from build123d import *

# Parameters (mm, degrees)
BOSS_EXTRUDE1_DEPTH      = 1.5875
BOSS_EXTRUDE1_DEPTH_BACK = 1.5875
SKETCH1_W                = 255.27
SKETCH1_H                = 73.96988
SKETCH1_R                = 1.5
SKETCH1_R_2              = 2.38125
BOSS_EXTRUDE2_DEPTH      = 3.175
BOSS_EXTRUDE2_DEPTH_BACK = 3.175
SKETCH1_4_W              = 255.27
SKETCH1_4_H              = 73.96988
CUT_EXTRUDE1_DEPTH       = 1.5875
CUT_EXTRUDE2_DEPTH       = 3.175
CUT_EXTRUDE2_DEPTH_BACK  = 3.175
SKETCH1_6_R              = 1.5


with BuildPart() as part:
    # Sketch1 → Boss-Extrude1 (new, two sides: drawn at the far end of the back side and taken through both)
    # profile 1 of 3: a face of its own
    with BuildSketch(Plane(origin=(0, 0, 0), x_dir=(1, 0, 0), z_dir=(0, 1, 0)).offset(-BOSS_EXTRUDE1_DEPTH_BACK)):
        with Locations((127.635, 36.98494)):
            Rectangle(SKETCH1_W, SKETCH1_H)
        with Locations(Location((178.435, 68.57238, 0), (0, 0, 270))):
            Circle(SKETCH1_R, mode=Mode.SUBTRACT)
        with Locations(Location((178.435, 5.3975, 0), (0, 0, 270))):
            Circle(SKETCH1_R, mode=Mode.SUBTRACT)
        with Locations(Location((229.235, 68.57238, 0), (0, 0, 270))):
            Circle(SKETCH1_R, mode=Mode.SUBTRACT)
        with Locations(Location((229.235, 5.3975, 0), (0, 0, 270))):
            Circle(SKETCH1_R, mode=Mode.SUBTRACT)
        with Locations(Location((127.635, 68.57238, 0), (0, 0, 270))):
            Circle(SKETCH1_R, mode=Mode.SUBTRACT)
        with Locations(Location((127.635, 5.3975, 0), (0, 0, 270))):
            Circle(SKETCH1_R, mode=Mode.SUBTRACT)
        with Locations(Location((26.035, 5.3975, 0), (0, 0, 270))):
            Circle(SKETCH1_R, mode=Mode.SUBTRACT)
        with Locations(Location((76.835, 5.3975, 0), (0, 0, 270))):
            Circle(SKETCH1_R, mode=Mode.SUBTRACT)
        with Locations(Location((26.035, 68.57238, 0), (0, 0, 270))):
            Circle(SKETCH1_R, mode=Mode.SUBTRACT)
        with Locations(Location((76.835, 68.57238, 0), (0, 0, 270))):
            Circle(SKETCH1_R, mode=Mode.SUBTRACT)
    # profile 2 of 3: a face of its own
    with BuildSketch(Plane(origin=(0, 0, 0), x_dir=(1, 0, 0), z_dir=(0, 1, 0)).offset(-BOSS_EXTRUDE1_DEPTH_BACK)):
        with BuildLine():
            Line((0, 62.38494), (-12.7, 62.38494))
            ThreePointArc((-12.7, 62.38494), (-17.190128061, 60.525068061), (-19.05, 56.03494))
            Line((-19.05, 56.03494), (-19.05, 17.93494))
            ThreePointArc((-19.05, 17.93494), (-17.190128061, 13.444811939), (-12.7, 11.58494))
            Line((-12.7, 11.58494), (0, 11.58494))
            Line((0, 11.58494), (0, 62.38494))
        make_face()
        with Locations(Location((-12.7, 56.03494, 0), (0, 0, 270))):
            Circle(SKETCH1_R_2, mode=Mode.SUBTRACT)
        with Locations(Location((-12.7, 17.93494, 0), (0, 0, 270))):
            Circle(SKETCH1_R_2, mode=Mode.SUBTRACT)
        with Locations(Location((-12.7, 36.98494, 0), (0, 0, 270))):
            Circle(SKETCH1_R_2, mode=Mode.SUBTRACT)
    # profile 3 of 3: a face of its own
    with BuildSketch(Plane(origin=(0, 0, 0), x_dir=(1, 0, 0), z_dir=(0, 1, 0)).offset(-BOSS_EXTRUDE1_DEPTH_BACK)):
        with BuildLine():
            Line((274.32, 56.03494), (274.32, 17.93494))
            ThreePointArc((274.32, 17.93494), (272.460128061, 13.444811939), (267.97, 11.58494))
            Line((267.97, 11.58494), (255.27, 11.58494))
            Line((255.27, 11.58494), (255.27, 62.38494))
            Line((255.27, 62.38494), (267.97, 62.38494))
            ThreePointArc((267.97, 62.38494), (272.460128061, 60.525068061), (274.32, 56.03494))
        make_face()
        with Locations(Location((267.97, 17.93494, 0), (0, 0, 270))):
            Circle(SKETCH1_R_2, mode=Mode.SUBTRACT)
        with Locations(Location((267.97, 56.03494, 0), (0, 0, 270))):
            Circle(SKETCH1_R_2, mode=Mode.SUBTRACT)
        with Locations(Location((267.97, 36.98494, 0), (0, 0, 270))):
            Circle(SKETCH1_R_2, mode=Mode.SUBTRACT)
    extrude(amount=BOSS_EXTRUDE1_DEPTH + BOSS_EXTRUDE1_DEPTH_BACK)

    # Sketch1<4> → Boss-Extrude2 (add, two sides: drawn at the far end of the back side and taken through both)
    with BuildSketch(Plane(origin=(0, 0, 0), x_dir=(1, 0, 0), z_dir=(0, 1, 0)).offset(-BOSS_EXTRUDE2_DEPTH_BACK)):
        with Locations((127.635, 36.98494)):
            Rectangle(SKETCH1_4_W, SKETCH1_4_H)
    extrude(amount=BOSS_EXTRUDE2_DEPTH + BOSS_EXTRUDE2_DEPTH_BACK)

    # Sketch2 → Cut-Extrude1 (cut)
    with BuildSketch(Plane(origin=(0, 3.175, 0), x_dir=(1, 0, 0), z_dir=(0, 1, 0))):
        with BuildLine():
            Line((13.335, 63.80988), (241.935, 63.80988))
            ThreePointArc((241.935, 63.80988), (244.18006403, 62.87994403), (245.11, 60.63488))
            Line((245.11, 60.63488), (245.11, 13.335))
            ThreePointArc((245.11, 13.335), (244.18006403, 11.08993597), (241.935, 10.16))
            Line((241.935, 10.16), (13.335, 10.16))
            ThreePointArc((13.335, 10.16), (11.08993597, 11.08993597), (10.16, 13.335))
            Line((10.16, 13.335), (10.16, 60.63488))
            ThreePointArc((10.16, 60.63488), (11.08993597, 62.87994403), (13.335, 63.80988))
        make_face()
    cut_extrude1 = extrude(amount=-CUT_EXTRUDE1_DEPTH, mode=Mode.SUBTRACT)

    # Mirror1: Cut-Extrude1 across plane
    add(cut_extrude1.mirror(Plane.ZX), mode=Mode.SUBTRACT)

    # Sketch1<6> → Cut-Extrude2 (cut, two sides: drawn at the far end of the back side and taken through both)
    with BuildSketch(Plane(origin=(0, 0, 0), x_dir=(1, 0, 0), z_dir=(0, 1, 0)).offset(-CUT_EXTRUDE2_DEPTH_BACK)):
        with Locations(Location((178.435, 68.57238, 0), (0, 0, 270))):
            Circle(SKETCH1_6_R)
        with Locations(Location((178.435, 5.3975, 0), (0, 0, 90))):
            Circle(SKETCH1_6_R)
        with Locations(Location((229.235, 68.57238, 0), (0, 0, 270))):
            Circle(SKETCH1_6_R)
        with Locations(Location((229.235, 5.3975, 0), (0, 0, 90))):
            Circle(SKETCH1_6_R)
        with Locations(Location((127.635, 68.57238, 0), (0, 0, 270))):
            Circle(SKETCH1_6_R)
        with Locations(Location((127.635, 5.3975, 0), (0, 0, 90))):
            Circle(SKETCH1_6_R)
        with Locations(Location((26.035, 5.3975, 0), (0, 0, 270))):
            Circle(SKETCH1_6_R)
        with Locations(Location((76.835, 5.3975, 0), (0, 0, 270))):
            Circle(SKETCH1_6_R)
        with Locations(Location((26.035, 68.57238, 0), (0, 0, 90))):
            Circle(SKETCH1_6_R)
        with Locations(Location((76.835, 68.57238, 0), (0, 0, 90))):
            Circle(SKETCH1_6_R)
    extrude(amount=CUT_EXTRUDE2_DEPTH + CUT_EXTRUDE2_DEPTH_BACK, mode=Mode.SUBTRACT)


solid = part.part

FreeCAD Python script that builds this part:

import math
import FreeCAD as App
import Part
import Sketcher
Q = App.Units.Quantity


def add_polygon(sketch, points):
    """Adds a closed chain of lines whose ends are joined by coincident constraints."""
    first, n = sketch.GeometryCount, len(points)
    for a, b in zip(points, points[1:] + points[:1]):
        sketch.addGeometry(Part.LineSegment(App.Vector(*a, 0), App.Vector(*b, 0)), False)
    for i in range(n):
        sketch.addConstraint(Sketcher.Constraint("Coincident", first + i, 2, first + (i + 1) % n, 1))

doc = App.newDocument("Part")
body = doc.addObject("PartDesign::Body", "Body")

# Sketch on XZ plane
sketch1 = body.newObject("Sketcher::SketchObject", "Sketch")
sketch1.AttachmentSupport = (doc.getObject("XZ_Plane"), [""])
sketch1.MapMode = "FlatFace"
sketch1.addGeometry(Part.LineSegment(App.Vector(0, -11.58494, 0), App.Vector(0, 0, 0)), False)
sketch1.addGeometry(Part.LineSegment(App.Vector(0, 0, 0), App.Vector(255.27, 0, 0)), False)
sketch1.addGeometry(Part.LineSegment(App.Vector(255.27, 0, 0), App.Vector(255.27, -11.58494, 0)), False)
sketch1.addGeometry(Part.LineSegment(App.Vector(255.27, -11.58494, 0), App.Vector(267.97, -11.58494, 0)), False)
sketch1.addGeometry(Part.ArcOfCircle(Part.Circle(App.Vector(267.97, -17.93494, 0), App.Vector(0, 0, 1), 6.35), math.radians(0), math.radians(90)), False)
sketch1.addGeometry(Part.LineSegment(App.Vector(274.32, -17.93494, 0), App.Vector(274.32, -56.03494, 0)), False)
sketch1.addGeometry(Part.ArcOfCircle(Part.Circle(App.Vector(267.97, -56.03494, 0), App.Vector(0, 0, 1), 6.35), math.radians(-90), math.radians(0)), False)
sketch1.addGeometry(Part.LineSegment(App.Vector(267.97, -62.38494, 0), App.Vector(255.27, -62.38494, 0)), False)
sketch1.addGeometry(Part.LineSegment(App.Vector(255.27, -62.38494, 0), App.Vector(255.27, -73.96988, 0)), False)
sketch1.addGeometry(Part.LineSegment(App.Vector(255.27, -73.96988, 0), App.Vector(0, -73.96988, 0)), False)
sketch1.addGeometry(Part.LineSegment(App.Vector(0, -73.96988, 0), App.Vector(0, -62.38494, 0)), False)
sketch1.addGeometry(Part.LineSegment(App.Vector(0, -62.38494, 0), App.Vector(-12.7, -62.38494, 0)), False)
sketch1.addGeometry(Part.ArcOfCircle(Part.Circle(App.Vector(-12.7, -56.03494, 0), App.Vector(0, 0, 1), 6.35), math.radians(180), math.radians(270)), False)
sketch1.addGeometry(Part.LineSegment(App.Vector(-19.05, -56.03494, 0), App.Vector(-19.05, -17.93494, 0)), False)
sketch1.addGeometry(Part.ArcOfCircle(Part.Circle(App.Vector(-12.7, -17.93494, 0), App.Vector(0, 0, 1), 6.35), math.radians(90), math.radians(180)), False)
sketch1.addGeometry(Part.LineSegment(App.Vector(-12.7, -11.58494, 0), App.Vector(0, -11.58494, 0)), False)
sketch1.addGeometry(Part.Circle(App.Vector(26.035, -5.3975, 0), App.Vector(0, 0, 1), 1.5), False)
sketch1.addGeometry(Part.Circle(App.Vector(76.835, -5.3975, 0), App.Vector(0, 0, 1), 1.5), False)
sketch1.addGeometry(Part.Circle(App.Vector(127.635, -5.3975, 0), App.Vector(0, 0, 1), 1.5), False)
sketch1.addGeometry(Part.Circle(App.Vector(178.435, -5.3975, 0), App.Vector(0, 0, 1), 1.5), False)
sketch1.addGeometry(Part.Circle(App.Vector(229.235, -5.3975, 0), App.Vector(0, 0, 1), 1.5), False)
sketch1.addGeometry(Part.Circle(App.Vector(26.035, -68.57238, 0), App.Vector(0, 0, 1), 1.5), False)
sketch1.addGeometry(Part.Circle(App.Vector(76.835, -68.57238, 0), App.Vector(0, 0, 1), 1.5), False)
sketch1.addGeometry(Part.Circle(App.Vector(127.635, -68.57238, 0), App.Vector(0, 0, 1), 1.5), False)
sketch1.addGeometry(Part.Circle(App.Vector(178.435, -68.57238, 0), App.Vector(0, 0, 1), 1.5), False)
sketch1.addGeometry(Part.Circle(App.Vector(229.235, -68.57238, 0), App.Vector(0, 0, 1), 1.5), False)
sketch1.addGeometry(Part.Circle(App.Vector(-12.7, -56.03494, 0), App.Vector(0, 0, 1), 2.38125), False)
sketch1.addGeometry(Part.Circle(App.Vector(-12.7, -17.93494, 0), App.Vector(0, 0, 1), 2.38125), False)
sketch1.addGeometry(Part.Circle(App.Vector(-12.7, -36.98494, 0), App.Vector(0, 0, 1), 2.38125), False)
sketch1.addGeometry(Part.Circle(App.Vector(267.97, -56.03494, 0), App.Vector(0, 0, 1), 2.38125), False)
sketch1.addGeometry(Part.Circle(App.Vector(267.97, -17.93494, 0), App.Vector(0, 0, 1), 2.38125), False)
sketch1.addGeometry(Part.Circle(App.Vector(267.97, -36.98494, 0), App.Vector(0, 0, 1), 2.38125), False)
sketch1.addConstraint(Sketcher.Constraint("Coincident", 0, 2, 1, 1))
sketch1.addConstraint(Sketcher.Constraint("Coincident", 1, 2, 2, 1))
sketch1.addConstraint(Sketcher.Constraint("Coincident", 2, 2, 3, 1))
sketch1.addConstraint(Sketcher.Constraint("Tangent", 3, 2, 4, 2))
sketch1.addConstraint(Sketcher.Constraint("Tangent", 4, 1, 5, 1))
sketch1.addConstraint(Sketcher.Constraint("Tangent", 5, 2, 6, 2))
sketch1.addConstraint(Sketcher.Constraint("Tangent", 6, 1, 7, 1))
sketch1.addConstraint(Sketcher.Constraint("Coincident", 7, 2, 8, 1))
sketch1.addConstraint(Sketcher.Constraint("Coincident", 8, 2, 9, 1))
sketch1.addConstraint(Sketcher.Constraint("Coincident", 9, 2, 10, 1))
sketch1.addConstraint(Sketcher.Constraint("Coincident", 10, 2, 11, 1))
sketch1.addConstraint(Sketcher.Constraint("Tangent", 11, 2, 12, 2))
sketch1.addConstraint(Sketcher.Constraint("Tangent", 12, 1, 13, 1))
sketch1.addConstraint(Sketcher.Constraint("Tangent", 13, 2, 14, 2))
sketch1.addConstraint(Sketcher.Constraint("Tangent", 14, 1, 15, 1))
sketch1.addConstraint(Sketcher.Constraint("Coincident", 15, 2, 0, 1))
sketch1.addConstraint(Sketcher.Constraint("Vertical", 0))
sketch1.addConstraint(Sketcher.Constraint("Horizontal", 1))
sketch1.addConstraint(Sketcher.Constraint("Vertical", 2))
sketch1.addConstraint(Sketcher.Constraint("Horizontal", 3))
sketch1.addConstraint(Sketcher.Constraint("Vertical", 5))
sketch1.addConstraint(Sketcher.Constraint("Horizontal", 7))
sketch1.addConstraint(Sketcher.Constraint("Vertical", 8))
sketch1.addConstraint(Sketcher.Constraint("Horizontal", 9))
sketch1.addConstraint(Sketcher.Constraint("Vertical", 10))
sketch1.addConstraint(Sketcher.Constraint("Horizontal", 11))
sketch1.addConstraint(Sketcher.Constraint("Vertical", 13))
sketch1.addConstraint(Sketcher.Constraint("Horizontal", 15))
sketch1.addConstraint(Sketcher.Constraint("Coincident", 0, 2, -1, 1))
sketch1.addConstraint(Sketcher.Constraint("Coincident", 26, 3, 12, 3))
sketch1.addConstraint(Sketcher.Constraint("Coincident", 27, 3, 14, 3))
sketch1.addConstraint(Sketcher.Constraint("Coincident", 29, 3, 6, 3))
sketch1.addConstraint(Sketcher.Constraint("Coincident", 30, 3, 4, 3))
sketch1.addConstraint(Sketcher.Constraint("Equal", 4, 6))
sketch1.addConstraint(Sketcher.Constraint("Equal", 6, 12))
sketch1.addConstraint(Sketcher.Constraint("Equal", 12, 14))
sketch1.addConstraint(Sketcher.Constraint("Equal", 16, 17))
sketch1.addConstraint(Sketcher.Constraint("Equal", 17, 18))
sketch1.addConstraint(Sketcher.Constraint("Equal", 18, 19))
sketch1.addConstraint(Sketcher.Constraint("Equal", 19, 20))
sketch1.addConstraint(Sketcher.Constraint("Equal", 20, 21))
sketch1.addConstraint(Sketcher.Constraint("Equal", 21, 22))
sketch1.addConstraint(Sketcher.Constraint("Equal", 22, 23))
sketch1.addConstraint(Sketcher.Constraint("Equal", 23, 24))
sketch1.addConstraint(Sketcher.Constraint("Equal", 24, 25))
sketch1.addConstraint(Sketcher.Constraint("Equal", 26, 27))
sketch1.addConstraint(Sketcher.Constraint("Equal", 27, 28))
sketch1.addConstraint(Sketcher.Constraint("Equal", 28, 29))
sketch1.addConstraint(Sketcher.Constraint("Equal", 29, 30))
sketch1.addConstraint(Sketcher.Constraint("Equal", 30, 31))
sketch1.addConstraint(Sketcher.Constraint("PointOnObject", 9, 2, -2))
sketch1.addConstraint(Sketcher.Constraint("Horizontal", 6, 3, 12, 3))
sketch1.addConstraint(Sketcher.Constraint("Horizontal", 4, 3, 14, 3))
sketch1.addConstraint(Sketcher.Constraint("Horizontal", 16, 3, 17, 3))
sketch1.addConstraint(Sketcher.Constraint("Horizontal", 17, 3, 18, 3))
sketch1.addConstraint(Sketcher.Constraint("Horizontal", 18, 3, 19, 3))
sketch1.addConstraint(Sketcher.Constraint("Horizontal", 19, 3, 20, 3))
sketch1.addConstraint(Sketcher.Constraint("Horizontal", 21, 3, 22, 3))
sketch1.addConstraint(Sketcher.Constraint("Horizontal", 22, 3, 23, 3))
sketch1.addConstraint(Sketcher.Constraint("Horizontal", 23, 3, 24, 3))
sketch1.addConstraint(Sketcher.Constraint("Horizontal", 24, 3, 25, 3))
sketch1.addConstraint(Sketcher.Constraint("Horizontal", 28, 3, 31, 3))
sketch1.addConstraint(Sketcher.Constraint("Vertical", 16, 3, 21, 3))
sketch1.addConstraint(Sketcher.Constraint("Vertical", 17, 3, 22, 3))
sketch1.addConstraint(Sketcher.Constraint("Vertical", 18, 3, 23, 3))
sketch1.addConstraint(Sketcher.Constraint("Vertical", 19, 3, 24, 3))
sketch1.addConstraint(Sketcher.Constraint("Vertical", 20, 3, 25, 3))
sketch1.addConstraint(Sketcher.Constraint("Vertical", 27, 3, 28, 3))
sketch1.addConstraint(Sketcher.Constraint("Vertical", 30, 3, 31, 3))
sketch1.addConstraint(Sketcher.Constraint("Vertical", 2, 2, 7, 2))
sketch1.addConstraint(Sketcher.Constraint("Equal", 7, 11))
sketch1.addConstraint(Sketcher.Constraint("Equal", 2, 8))
sketch1.addConstraint(Sketcher.Constraint("Radius", 4, Q("0.25 in")))
sketch1.addConstraint(Sketcher.Constraint("Diameter", 26, Q("0.1875 in")))
sketch1.addConstraint(Sketcher.Constraint("DistanceX", 3, 1, 3, 2, Q("0.5 in")))
sketch1.addConstraint(Sketcher.Constraint("DistanceY", 5, 2, 5, 1, Q("1.5 in")))
sketch1.addConstraint(Sketcher.Constraint("DistanceX", 16, 3, 17, 3, Q("2 in")))
sketch1.addConstraint(Sketcher.Constraint("DistanceX", 17, 3, 18, 3, Q("2 in")))
sketch1.addConstraint(Sketcher.Constraint("DistanceX", 18, 3, 19, 3, Q("2 in")))
sketch1.addConstraint(Sketcher.Constraint("DistanceX", 19, 3, 20, 3, Q("2 in")))
sketch1.addConstraint(Sketcher.Constraint("DistanceY", 31, 3, 2, 2, Q("1 in")))
sketch1.addConstraint(Sketcher.Constraint("DistanceX", 1, 1, 1, 2, Q("10.05 in")))
sketch1.addConstraint(Sketcher.Constraint("Diameter", 16, Q("3 mm")))
sketch1.addConstraint(Sketcher.Constraint("DistanceY", 0, 1, 0, 2, Q("0.4561 in")))
sketch1.addConstraint(Sketcher.Constraint("DistanceX", -1, 1, 16, 3, Q("1.025 in")))
sketch1.addConstraint(Sketcher.Constraint("DistanceY", 16, 3, -1, 1, Q("0.2125 in")))
sketch1.addConstraint(Sketcher.Constraint("DistanceY", 21, 3, -1, 1, Q("2.6997 in")))
pad1 = body.newObject("PartDesign::Pad", "Pad")
pad1.Profile = sketch1
pad1.Type = "TwoLengths"
pad1.Length = Q("0.0625 in")
pad1.Length2 = Q("0.0625 in")
pad1.Reversed = True

# Sketch on XZ plane
sketch2 = body.newObject("Sketcher::SketchObject", "Sketch001")
sketch2.AttachmentSupport = (doc.getObject("XZ_Plane"), [""])
sketch2.MapMode = "FlatFace"
add_polygon(sketch2, [(0, -73.96988), (0, 0), (255.27, 0), (255.27, -73.96988)])  # lines 0-3
sketch2.addConstraint(Sketcher.Constraint("Vertical", 0))
sketch2.addConstraint(Sketcher.Constraint("Horizontal", 1))
sketch2.addConstraint(Sketcher.Constraint("Vertical", 2))
sketch2.addConstraint(Sketcher.Constraint("Horizontal", 3))
sketch2.addConstraint(Sketcher.Constraint("Coincident", 0, 2, -1, 1))
sketch2.addConstraint(Sketcher.Constraint("DistanceX", 1, 1, 1, 2, Q("10.05 in")))
sketch2.addConstraint(Sketcher.Constraint("DistanceY", 0, 1, 0, 2, Q("2.9122 in")))
pad2 = body.newObject("PartDesign::Pad", "Pad001")
pad2.Profile = sketch2
pad2.Type = "TwoLengths"
pad2.Length = Q("0.125 in")
pad2.Length2 = Q("0.125 in")
pad2.Reversed = True

# Sketch on XZ plane
sketch3 = body.newObject("Sketcher::SketchObject", "Sketch002")
sketch3.AttachmentSupport = (doc.getObject("XZ_Plane"), [""])
sketch3.MapMode = "FlatFace"
sketch3.AttachmentOffset = App.Placement(App.Vector(0, 0, -0.125 * 25.4), App.Rotation())
sketch3.addGeometry(Part.LineSegment(App.Vector(241.935, -63.80988, 0), App.Vector(13.335, -63.80988, 0)), False)
sketch3.addGeometry(Part.ArcOfCircle(Part.Circle(App.Vector(13.335, -60.63488, 0), App.Vector(0, 0, 1), 3.175), math.radians(-180), math.radians(-90)), False)
sketch3.addGeometry(Part.LineSegment(App.Vector(10.16, -60.63488, 0), App.Vector(10.16, -13.335, 0)), False)
sketch3.addGeometry(Part.ArcOfCircle(Part.Circle(App.Vector(13.335, -13.335, 0), App.Vector(0, 0, 1), 3.175), math.radians(90), math.radians(180)), False)
sketch3.addGeometry(Part.LineSegment(App.Vector(13.335, -10.16, 0), App.Vector(241.935, -10.16, 0)), False)
sketch3.addGeometry(Part.ArcOfCircle(Part.Circle(App.Vector(241.935, -13.335, 0), App.Vector(0, 0, 1), 3.175), math.radians(0), math.radians(90)), False)
sketch3.addGeometry(Part.LineSegment(App.Vector(245.11, -13.335, 0), App.Vector(245.11, -60.63488, 0)), False)
sketch3.addGeometry(Part.ArcOfCircle(Part.Circle(App.Vector(241.935, -60.63488, 0), App.Vector(0, 0, 1), 3.175), math.radians(-90), math.radians(0)), False)
sketch3.addConstraint(Sketcher.Constraint("Tangent", 0, 2, 1, 2))
sketch3.addConstraint(Sketcher.Constraint("Tangent", 1, 1, 2, 1))
sketch3.addConstraint(Sketcher.Constraint("Tangent", 2, 2, 3, 2))
sketch3.addConstraint(Sketcher.Constraint("Tangent", 3, 1, 4, 1))
sketch3.addConstraint(Sketcher.Constraint("Tangent", 4, 2, 5, 2))
sketch3.addConstraint(Sketcher.Constraint("Tangent", 5, 1, 6, 1))
sketch3.addConstraint(Sketcher.Constraint("Tangent", 6, 2, 7, 2))
sketch3.addConstraint(Sketcher.Constraint("Tangent", 7, 1, 0, 1))
sketch3.addConstraint(Sketcher.Constraint("Horizontal", 0))
sketch3.addConstraint(Sketcher.Constraint("Vertical", 2))
sketch3.addConstraint(Sketcher.Constraint("Horizontal", 4))
sketch3.addConstraint(Sketcher.Constraint("Vertical", 6))
sketch3.addConstraint(Sketcher.Constraint("Equal", 1, 3))
sketch3.addConstraint(Sketcher.Constraint("Equal", 3, 5))
sketch3.addConstraint(Sketcher.Constraint("Equal", 5, 7))
sketch3.addConstraint(Sketcher.Constraint("DistanceX", 0, 2, 0, 1, Q("9 in")))
sketch3.addConstraint(Sketcher.Constraint("Radius", 1, Q("0.125 in")))
sketch3.addConstraint(Sketcher.Constraint("DistanceX", -1, 1, 1, 1, Q("0.4 in")))
sketch3.addConstraint(Sketcher.Constraint("DistanceY", 3, 1, -1, 1, Q("0.4 in")))
sketch3.addConstraint(Sketcher.Constraint("DistanceY", 2, 1, 2, 2, Q("1.8622 in")))
pocket1 = body.newObject("PartDesign::Pocket", "Pocket")
pocket1.Profile = sketch3
pocket1.Length = Q("0.0625 in")
pocket1.Reversed = True
doc.recompute()

mirrored = body.newObject("PartDesign::Mirrored", "Mirrored")
mirrored.Originals = [pocket1]
mirrored.MirrorPlane = (doc.getObject("XZ_Plane"), [""])
body.Tip = mirrored

# Sketch on XZ plane
sketch4 = body.newObject("Sketcher::SketchObject", "Sketch003")
sketch4.AttachmentSupport = (doc.getObject("XZ_Plane"), [""])
sketch4.MapMode = "FlatFace"
sketch4.addGeometry(Part.Circle(App.Vector(178.435, -68.57238, 0), App.Vector(0, 0, 1), 1.5), False)
sketch4.addGeometry(Part.Circle(App.Vector(178.435, -5.3975, 0), App.Vector(0, 0, 1), 1.5), False)
sketch4.addGeometry(Part.Circle(App.Vector(229.235, -68.57238, 0), App.Vector(0, 0, 1), 1.5), False)
sketch4.addGeometry(Part.Circle(App.Vector(229.235, -5.3975, 0), App.Vector(0, 0, 1), 1.5), False)
sketch4.addGeometry(Part.Circle(App.Vector(127.635, -68.57238, 0), App.Vector(0, 0, 1), 1.5), False)
sketch4.addGeometry(Part.Circle(App.Vector(127.635, -5.3975, 0), App.Vector(0, 0, 1), 1.5), False)
sketch4.addGeometry(Part.Circle(App.Vector(26.035, -5.3975, 0), App.Vector(0, 0, 1), 1.5), False)
sketch4.addGeometry(Part.Circle(App.Vector(76.835, -5.3975, 0), App.Vector(0, 0, 1), 1.5), False)
sketch4.addGeometry(Part.Circle(App.Vector(26.035, -68.57238, 0), App.Vector(0, 0, 1), 1.5), False)
sketch4.addGeometry(Part.Circle(App.Vector(76.835, -68.57238, 0), App.Vector(0, 0, 1), 1.5), False)
sketch4.addConstraint(Sketcher.Constraint("Equal", 0, 1))
sketch4.addConstraint(Sketcher.Constraint("Equal", 1, 2))
sketch4.addConstraint(Sketcher.Constraint("Equal", 2, 3))
sketch4.addConstraint(Sketcher.Constraint("Equal", 3, 4))
sketch4.addConstraint(Sketcher.Constraint("Equal", 4, 5))
sketch4.addConstraint(Sketcher.Constraint("Equal", 5, 6))
sketch4.addConstraint(Sketcher.Constraint("Equal", 6, 7))
sketch4.addConstraint(Sketcher.Constraint("Equal", 7, 8))
sketch4.addConstraint(Sketcher.Constraint("Equal", 8, 9))
sketch4.addConstraint(Sketcher.Constraint("Horizontal", 0, 3, 2, 3))
sketch4.addConstraint(Sketcher.Constraint("Horizontal", 1, 3, 3, 3))
sketch4.addConstraint(Sketcher.Constraint("Horizontal", 2, 3, 4, 3))
sketch4.addConstraint(Sketcher.Constraint("Horizontal", 3, 3, 5, 3))
sketch4.addConstraint(Sketcher.Constraint("Horizontal", 5, 3, 6, 3))
sketch4.addConstraint(Sketcher.Constraint("Horizontal", 6, 3, 7, 3))
sketch4.addConstraint(Sketcher.Constraint("Horizontal", 4, 3, 8, 3))
sketch4.addConstraint(Sketcher.Constraint("Horizontal", 8, 3, 9, 3))
sketch4.addConstraint(Sketcher.Constraint("Vertical", 0, 3, 1, 3))
sketch4.addConstraint(Sketcher.Constraint("Vertical", 2, 3, 3, 3))
sketch4.addConstraint(Sketcher.Constraint("Vertical", 4, 3, 5, 3))
sketch4.addConstraint(Sketcher.Constraint("Vertical", 6, 3, 8, 3))
sketch4.addConstraint(Sketcher.Constraint("Vertical", 7, 3, 9, 3))
sketch4.addConstraint(Sketcher.Constraint("DistanceX", 0, 3, 2, 3, Q("2 in")))
sketch4.addConstraint(Sketcher.Constraint("DistanceX", 4, 3, 0, 3, Q("2 in")))
sketch4.addConstraint(Sketcher.Constraint("DistanceX", 6, 3, 5, 3, Q("4 in")))
sketch4.addConstraint(Sketcher.Constraint("DistanceX", 6, 3, 7, 3, Q("2 in")))
sketch4.addConstraint(Sketcher.Constraint("Diameter", 0, Q("3 mm")))
sketch4.addConstraint(Sketcher.Constraint("DistanceX", -1, 1, 0, 3, Q("7.025 in")))
sketch4.addConstraint(Sketcher.Constraint("DistanceY", 0, 3, -1, 1, Q("2.6997 in")))
sketch4.addConstraint(Sketcher.Constraint("DistanceY", 1, 3, -1, 1, Q("0.2125 in")))
pocket2 = body.newObject("PartDesign::Pocket", "Pocket001")
pocket2.Profile = sketch4
pocket2.Type = "ThroughAll"
pocket2.Midplane = True

doc.recompute()
